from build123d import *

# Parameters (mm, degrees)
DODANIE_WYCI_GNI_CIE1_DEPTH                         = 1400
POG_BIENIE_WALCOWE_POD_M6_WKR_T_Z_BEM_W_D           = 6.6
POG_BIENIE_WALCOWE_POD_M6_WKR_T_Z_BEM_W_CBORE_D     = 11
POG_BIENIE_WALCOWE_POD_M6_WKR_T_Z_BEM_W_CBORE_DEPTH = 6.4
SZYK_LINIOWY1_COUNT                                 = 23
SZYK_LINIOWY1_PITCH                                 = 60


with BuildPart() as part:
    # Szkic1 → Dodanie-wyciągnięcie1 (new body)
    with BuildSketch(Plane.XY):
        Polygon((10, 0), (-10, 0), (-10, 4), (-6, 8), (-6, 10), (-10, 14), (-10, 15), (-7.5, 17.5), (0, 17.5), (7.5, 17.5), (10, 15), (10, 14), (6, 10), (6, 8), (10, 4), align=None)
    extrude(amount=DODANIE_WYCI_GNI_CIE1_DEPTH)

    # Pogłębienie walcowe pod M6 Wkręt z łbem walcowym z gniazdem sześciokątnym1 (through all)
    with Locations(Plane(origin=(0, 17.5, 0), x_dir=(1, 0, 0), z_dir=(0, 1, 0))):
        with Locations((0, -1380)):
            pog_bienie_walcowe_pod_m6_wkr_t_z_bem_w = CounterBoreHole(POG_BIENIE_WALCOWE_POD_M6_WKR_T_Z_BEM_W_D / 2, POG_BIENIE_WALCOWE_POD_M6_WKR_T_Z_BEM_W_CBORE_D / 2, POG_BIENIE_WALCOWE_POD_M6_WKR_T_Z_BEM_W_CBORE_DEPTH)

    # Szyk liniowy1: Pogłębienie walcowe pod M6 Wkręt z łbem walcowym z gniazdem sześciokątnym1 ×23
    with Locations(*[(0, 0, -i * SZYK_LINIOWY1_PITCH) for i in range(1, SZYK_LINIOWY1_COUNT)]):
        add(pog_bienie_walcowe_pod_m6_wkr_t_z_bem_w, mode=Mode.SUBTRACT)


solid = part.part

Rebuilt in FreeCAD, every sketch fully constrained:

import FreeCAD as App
import Part
import Sketcher
Q = App.Units.Quantity

doc = App.newDocument("Part")
body = doc.addObject("PartDesign::Body", "Body")

# Sketch on XY plane
sketch1 = body.newObject("Sketcher::SketchObject", "Sketch")
sketch1.AttachmentSupport = (doc.getObject("XY_Plane"), [""])
sketch1.MapMode = "FlatFace"
sketch1.addGeometry(Part.LineSegment(App.Vector(-10, 0, 0), App.Vector(10, 0, 0)), False)
sketch1.addGeometry(Part.LineSegment(App.Vector(10, 0, 0), App.Vector(10, 4, 0)), False)
sketch1.addGeometry(Part.LineSegment(App.Vector(10, 4, 0), App.Vector(6, 8, 0)), False)
sketch1.addGeometry(Part.LineSegment(App.Vector(6, 8, 0), App.Vector(6, 10, 0)), False)
sketch1.addGeometry(Part.LineSegment(App.Vector(6, 10, 0), App.Vector(10, 14, 0)), False)
sketch1.addGeometry(Part.LineSegment(App.Vector(10, 14, 0), App.Vector(10, 15, 0)), False)
sketch1.addGeometry(Part.LineSegment(App.Vector(10, 15, 0), App.Vector(7.5, 17.5, 0)), False)
sketch1.addGeometry(Part.LineSegment(App.Vector(7.5, 17.5, 0), App.Vector(-7.5, 17.5, 0)), False)
sketch1.addGeometry(Part.LineSegment(App.Vector(-7.5, 17.5, 0), App.Vector(-10, 15, 0)), False)
sketch1.addGeometry(Part.LineSegment(App.Vector(-10, 15, 0), App.Vector(-10, 14, 0)), False)
sketch1.addGeometry(Part.LineSegment(App.Vector(-10, 14, 0), App.Vector(-6, 10, 0)), False)
sketch1.addGeometry(Part.LineSegment(App.Vector(-6, 10, 0), App.Vector(-6, 8, 0)), False)
sketch1.addGeometry(Part.LineSegment(App.Vector(-6, 8, 0), App.Vector(-10, 4, 0)), False)
sketch1.addGeometry(Part.LineSegment(App.Vector(-10, 4, 0), App.Vector(-10, 0, 0)), False)
sketch1.addConstraint(Sketcher.Constraint("Coincident", 0, 2, 1, 1))
sketch1.addConstraint(Sketcher.Constraint("Coincident", 1, 2, 2, 1))
sketch1.addConstraint(Sketcher.Constraint("Coincident", 2, 2, 3, 1))
sketch1.addConstraint(Sketcher.Constraint("Coincident", 3, 2, 4, 1))
sketch1.addConstraint(Sketcher.Constraint("Coincident", 4, 2, 5, 1))
sketch1.addConstraint(Sketcher.Constraint("Coincident", 5, 2, 6, 1))
sketch1.addConstraint(Sketcher.Constraint("Coincident", 6, 2, 7, 1))
sketch1.addConstraint(Sketcher.Constraint("Coincident", 7, 2, 8, 1))
sketch1.addConstraint(Sketcher.Constraint("Coincident", 8, 2, 9, 1))
sketch1.addConstraint(Sketcher.Constraint("Coincident", 9, 2, 10, 1))
sketch1.addConstraint(Sketcher.Constraint("Coincident", 10, 2, 11, 1))
sketch1.addConstraint(Sketcher.Constraint("Coincident", 11, 2, 12, 1))
sketch1.addConstraint(Sketcher.Constraint("Coincident", 12, 2, 13, 1))
sketch1.addConstraint(Sketcher.Constraint("Coincident", 13, 2, 0, 1))
sketch1.addConstraint(Sketcher.Constraint("Horizontal", 0))
sketch1.addConstraint(Sketcher.Constraint("Vertical", 1))
sketch1.addConstraint(Sketcher.Constraint("Vertical", 3))
sketch1.addConstraint(Sketcher.Constraint("Vertical", 5))
sketch1.addConstraint(Sketcher.Constraint("Horizontal", 7))
sketch1.addConstraint(Sketcher.Constraint("Vertical", 9))
sketch1.addConstraint(Sketcher.Constraint("Vertical", 11))
sketch1.addConstraint(Sketcher.Constraint("Vertical", 13))
sketch1.addConstraint(Sketcher.Constraint("Symmetric", 0, 2, 13, 2, -1, 1))
sketch1.addConstraint(Sketcher.Constraint("Symmetric", 5, 2, 8, 2, -2))
sketch1.addConstraint(Sketcher.Constraint("Symmetric", 3, 2, 10, 2, -2))
sketch1.addConstraint(Sketcher.Constraint("Perpendicular", 2, 4))
sketch1.addConstraint(Sketcher.Constraint("Perpendicular", 4, 6))
sketch1.addConstraint(Sketcher.Constraint("Perpendicular", 6, 8))
sketch1.addConstraint(Sketcher.Constraint("Perpendicular", 8, 10))
sketch1.addConstraint(Sketcher.Constraint("Perpendicular", 10, 12))
sketch1.addConstraint(Sketcher.Constraint("Horizontal", 4, 2, 9, 2))
sketch1.addConstraint(Sketcher.Constraint("Horizontal", 2, 2, 11, 2))
sketch1.addConstraint(Sketcher.Constraint("Vertical", 1, 2, 4, 2))
sketch1.addConstraint(Sketcher.Constraint("DistanceX", 0, 1, 0, 2, Q("20 mm")))
sketch1.addConstraint(Sketcher.Constraint("DistanceX", 7, 2, 7, 1, Q("15 mm")))
sketch1.addConstraint(Sketcher.Constraint("DistanceY", 1, 1, 1, 2, Q("4 mm")))
sketch1.addConstraint(Sketcher.Constraint("DistanceY", 3, 1, 3, 2, Q("2 mm")))
sketch1.addConstraint(Sketcher.Constraint("DistanceY", 5, 1, 5, 2, Q("1 mm")))
sketch1.addConstraint(Sketcher.Constraint("DistanceX", -1, 1, 2, 2, Q("6 mm")))
pad1 = body.newObject("PartDesign::Pad", "Pad")
pad1.Profile = sketch1
pad1.Length = 1400

# Sketch on XZ plane
sketch2 = body.newObject("Sketcher::SketchObject", "Sketch001")
sketch2.AttachmentSupport = (doc.getObject("XZ_Plane"), [""])
sketch2.MapMode = "FlatFace"
sketch2.AttachmentOffset = App.Placement(App.Vector(0, 0, -17.5), App.Rotation())
sketch2.addGeometry(Part.Circle(App.Vector(0, 1380, 0), App.Vector(0, 0, 1), 3.3), False)
sketch2.addConstraint(Sketcher.Constraint("PointOnObject", 0, 3, -2))
sketch2.addConstraint(Sketcher.Constraint("Diameter", 0, Q("6.6 mm")))
sketch2.addConstraint(Sketcher.Constraint("DistanceY", -1, 1, 0, 3, Q("1380 mm")))
doc.recompute()
hole = body.newObject("PartDesign::Hole", "Hole")
hole.Profile = sketch2
hole.ThreadType = "None"
hole.Diameter = 6.6
hole.DepthType = "ThroughAll"
hole.HoleCutType = "Counterbore"
hole.HoleCutDiameter = 11
hole.HoleCutDepth = 6.4
hole.Reversed = True
doc.recompute()

linearpattern = body.newObject("PartDesign::LinearPattern", "LinearPattern")
linearpattern.Originals = [hole]
linearpattern.Direction = (doc.getObject("Z_Axis"), [""])
linearpattern.Mode = "offset"
linearpattern.Offset = 60
linearpattern.Occurrences = 23
linearpattern.Reversed = True
body.Tip = linearpattern

doc.recompute()
